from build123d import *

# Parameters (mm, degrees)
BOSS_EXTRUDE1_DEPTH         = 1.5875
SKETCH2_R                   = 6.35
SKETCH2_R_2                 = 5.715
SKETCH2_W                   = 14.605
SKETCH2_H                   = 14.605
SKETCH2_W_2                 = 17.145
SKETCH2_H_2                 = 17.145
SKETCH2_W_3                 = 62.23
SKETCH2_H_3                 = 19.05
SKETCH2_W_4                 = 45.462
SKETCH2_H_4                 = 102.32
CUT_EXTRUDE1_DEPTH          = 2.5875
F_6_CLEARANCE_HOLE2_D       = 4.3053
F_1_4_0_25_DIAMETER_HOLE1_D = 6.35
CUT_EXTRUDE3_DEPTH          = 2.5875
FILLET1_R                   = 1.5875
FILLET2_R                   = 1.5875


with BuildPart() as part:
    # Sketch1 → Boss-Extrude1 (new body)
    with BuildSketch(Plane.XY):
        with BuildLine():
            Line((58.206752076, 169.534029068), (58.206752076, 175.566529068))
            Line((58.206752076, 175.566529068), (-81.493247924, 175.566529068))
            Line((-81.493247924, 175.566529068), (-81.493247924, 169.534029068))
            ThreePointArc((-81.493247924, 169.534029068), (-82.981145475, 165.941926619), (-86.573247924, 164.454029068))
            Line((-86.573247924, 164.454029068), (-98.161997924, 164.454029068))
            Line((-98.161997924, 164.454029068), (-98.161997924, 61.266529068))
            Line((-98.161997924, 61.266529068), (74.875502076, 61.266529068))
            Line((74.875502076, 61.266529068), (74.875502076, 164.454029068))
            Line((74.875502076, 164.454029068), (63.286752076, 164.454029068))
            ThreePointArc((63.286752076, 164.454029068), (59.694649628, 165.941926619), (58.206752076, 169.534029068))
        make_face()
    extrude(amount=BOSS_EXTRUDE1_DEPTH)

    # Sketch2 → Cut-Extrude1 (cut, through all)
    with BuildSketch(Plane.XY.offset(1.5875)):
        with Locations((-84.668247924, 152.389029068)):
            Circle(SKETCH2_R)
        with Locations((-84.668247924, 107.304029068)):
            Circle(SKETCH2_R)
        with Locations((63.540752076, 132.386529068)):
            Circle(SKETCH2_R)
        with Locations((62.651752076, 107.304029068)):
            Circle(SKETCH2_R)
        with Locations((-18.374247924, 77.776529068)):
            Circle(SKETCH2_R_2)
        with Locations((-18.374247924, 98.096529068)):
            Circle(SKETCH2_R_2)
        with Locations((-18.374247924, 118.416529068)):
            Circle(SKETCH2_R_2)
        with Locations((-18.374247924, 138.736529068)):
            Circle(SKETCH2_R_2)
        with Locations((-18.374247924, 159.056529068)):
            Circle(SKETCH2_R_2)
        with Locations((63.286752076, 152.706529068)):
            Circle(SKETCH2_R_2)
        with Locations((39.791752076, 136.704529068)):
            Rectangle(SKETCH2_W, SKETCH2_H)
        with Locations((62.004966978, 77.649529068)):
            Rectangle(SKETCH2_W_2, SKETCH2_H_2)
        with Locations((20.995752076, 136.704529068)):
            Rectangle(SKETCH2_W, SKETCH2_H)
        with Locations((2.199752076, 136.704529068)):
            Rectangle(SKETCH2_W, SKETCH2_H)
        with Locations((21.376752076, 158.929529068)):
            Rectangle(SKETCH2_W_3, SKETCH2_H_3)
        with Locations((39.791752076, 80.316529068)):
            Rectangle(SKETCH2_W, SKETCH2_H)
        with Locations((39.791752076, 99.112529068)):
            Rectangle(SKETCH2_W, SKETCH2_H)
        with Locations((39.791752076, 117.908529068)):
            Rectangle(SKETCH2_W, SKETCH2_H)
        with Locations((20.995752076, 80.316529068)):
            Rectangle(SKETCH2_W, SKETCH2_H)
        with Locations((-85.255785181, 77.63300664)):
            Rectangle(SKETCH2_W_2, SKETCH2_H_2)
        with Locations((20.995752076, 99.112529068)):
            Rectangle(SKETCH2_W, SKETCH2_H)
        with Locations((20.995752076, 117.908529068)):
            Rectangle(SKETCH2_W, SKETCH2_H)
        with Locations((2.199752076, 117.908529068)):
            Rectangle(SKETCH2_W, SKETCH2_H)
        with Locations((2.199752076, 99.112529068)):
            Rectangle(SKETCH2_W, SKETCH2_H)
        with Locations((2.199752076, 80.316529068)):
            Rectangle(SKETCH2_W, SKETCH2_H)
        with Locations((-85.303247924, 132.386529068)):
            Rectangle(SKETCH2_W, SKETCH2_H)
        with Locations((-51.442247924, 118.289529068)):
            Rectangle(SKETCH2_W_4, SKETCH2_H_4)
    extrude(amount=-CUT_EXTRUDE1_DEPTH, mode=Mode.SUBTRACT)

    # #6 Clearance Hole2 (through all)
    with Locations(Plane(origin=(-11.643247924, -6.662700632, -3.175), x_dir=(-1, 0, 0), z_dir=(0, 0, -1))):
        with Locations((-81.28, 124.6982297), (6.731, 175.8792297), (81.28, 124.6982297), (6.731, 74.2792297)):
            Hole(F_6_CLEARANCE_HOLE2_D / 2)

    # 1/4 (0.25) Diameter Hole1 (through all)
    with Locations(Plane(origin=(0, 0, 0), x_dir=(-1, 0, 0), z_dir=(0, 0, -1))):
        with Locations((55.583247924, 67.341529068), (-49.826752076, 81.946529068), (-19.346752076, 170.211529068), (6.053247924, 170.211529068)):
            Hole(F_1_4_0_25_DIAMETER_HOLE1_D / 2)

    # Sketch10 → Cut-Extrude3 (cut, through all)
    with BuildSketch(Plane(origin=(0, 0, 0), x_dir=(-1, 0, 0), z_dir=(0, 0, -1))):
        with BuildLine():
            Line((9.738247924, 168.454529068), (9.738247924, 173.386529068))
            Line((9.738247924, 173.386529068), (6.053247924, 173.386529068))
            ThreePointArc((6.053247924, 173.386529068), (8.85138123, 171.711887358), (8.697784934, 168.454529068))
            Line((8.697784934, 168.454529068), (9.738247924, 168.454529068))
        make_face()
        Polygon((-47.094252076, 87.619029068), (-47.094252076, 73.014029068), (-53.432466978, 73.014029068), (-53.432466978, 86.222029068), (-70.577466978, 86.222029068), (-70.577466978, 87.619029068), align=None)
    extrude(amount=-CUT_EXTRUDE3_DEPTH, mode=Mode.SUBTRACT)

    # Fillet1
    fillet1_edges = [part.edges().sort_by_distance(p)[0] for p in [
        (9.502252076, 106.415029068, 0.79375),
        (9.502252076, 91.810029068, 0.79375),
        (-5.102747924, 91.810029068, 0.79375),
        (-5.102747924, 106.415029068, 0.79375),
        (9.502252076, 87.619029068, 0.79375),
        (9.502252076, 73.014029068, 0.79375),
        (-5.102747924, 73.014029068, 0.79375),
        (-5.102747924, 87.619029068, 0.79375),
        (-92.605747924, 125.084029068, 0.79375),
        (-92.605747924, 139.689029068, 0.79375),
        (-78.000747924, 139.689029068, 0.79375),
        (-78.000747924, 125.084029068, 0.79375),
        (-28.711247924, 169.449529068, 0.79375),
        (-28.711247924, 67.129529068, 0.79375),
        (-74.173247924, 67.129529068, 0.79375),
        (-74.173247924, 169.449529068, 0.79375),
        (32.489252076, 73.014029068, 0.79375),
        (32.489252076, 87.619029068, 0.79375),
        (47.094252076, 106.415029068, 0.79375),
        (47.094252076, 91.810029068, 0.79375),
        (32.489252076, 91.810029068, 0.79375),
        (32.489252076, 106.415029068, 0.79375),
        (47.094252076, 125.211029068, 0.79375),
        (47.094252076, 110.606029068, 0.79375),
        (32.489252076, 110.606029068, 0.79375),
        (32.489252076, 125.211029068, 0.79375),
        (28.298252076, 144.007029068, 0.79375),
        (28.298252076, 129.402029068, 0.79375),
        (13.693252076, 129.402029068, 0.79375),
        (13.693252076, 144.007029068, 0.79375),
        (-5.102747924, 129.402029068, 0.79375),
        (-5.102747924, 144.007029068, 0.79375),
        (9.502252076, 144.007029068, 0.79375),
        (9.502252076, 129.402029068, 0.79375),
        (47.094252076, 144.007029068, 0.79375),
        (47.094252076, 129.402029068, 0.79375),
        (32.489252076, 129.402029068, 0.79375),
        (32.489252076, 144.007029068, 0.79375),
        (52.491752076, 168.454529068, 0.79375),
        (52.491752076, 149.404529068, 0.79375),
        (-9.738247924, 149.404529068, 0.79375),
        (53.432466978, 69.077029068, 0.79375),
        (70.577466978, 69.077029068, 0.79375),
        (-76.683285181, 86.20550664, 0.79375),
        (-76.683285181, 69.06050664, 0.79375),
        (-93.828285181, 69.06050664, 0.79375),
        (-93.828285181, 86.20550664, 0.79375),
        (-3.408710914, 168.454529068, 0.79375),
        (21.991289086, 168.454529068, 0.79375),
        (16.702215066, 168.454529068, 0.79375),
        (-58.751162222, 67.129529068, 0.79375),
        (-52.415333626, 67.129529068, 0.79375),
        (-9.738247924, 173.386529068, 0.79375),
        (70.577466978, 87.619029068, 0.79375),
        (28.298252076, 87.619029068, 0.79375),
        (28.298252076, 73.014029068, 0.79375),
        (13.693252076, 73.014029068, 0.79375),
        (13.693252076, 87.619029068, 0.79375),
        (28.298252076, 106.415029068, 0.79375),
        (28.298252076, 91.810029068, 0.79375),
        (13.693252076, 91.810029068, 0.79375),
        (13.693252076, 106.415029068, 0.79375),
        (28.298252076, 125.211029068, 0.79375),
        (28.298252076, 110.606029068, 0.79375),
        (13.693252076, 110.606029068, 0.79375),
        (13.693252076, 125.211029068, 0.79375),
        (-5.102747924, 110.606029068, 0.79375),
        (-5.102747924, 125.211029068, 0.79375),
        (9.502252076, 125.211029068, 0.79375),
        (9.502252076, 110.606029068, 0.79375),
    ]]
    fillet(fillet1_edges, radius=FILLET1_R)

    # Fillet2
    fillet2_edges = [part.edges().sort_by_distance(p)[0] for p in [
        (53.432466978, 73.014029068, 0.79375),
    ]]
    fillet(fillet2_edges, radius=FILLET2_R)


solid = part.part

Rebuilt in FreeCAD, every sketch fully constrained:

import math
import FreeCAD as App
import Part
import Sketcher

V = App.Vector
Q = App.Units.Quantity


def edges_at(feature, points):
    """Names of the edges that pass closest to the given points."""
    edges = feature.Shape.Edges
    near = lambda p: min(range(len(edges)), key=lambda i: edges[i].distToShape(Part.Vertex(*p))[0])
    return sorted({f"Edge{near(p) + 1}" for p in points})


def add_polygon(sketch, points):
    """Adds a closed chain of lines whose ends are joined by coincident constraints."""
    first, n = sketch.GeometryCount, len(points)
    for a, b in zip(points, points[1:] + points[:1]):
        sketch.addGeometry(Part.LineSegment(App.Vector(*a, 0), App.Vector(*b, 0)), False)
    for i in range(n):
        sketch.addConstraint(Sketcher.Constraint("Coincident", first + i, 2, first + (i + 1) % n, 1))

doc = App.newDocument("Part")
body = doc.addObject("PartDesign::Body", "Body")

# Sketch on XY plane
sketch1 = body.newObject("Sketcher::SketchObject", "Sketch")
sketch1.AttachmentSupport = (doc.getObject("XY_Plane"), [""])
sketch1.MapMode = "FlatFace"
sketch1.addGeometry([
    Part.LineSegment(V(58, 170, 0), V(58, 176, 0)),  # 0
    Part.LineSegment(V(58, 176, 0), V(-81, 176, 0)),  # 1
    Part.LineSegment(V(-81, 176, 0), V(-81, 170, 0)),  # 2
    Part.ArcOfCircle(Part.Circle(V(-87, 170, 0), V(0, 0, 1), 5), math.radians(-90), math.radians(0)),  # 3
    Part.LineSegment(V(-87, 164, 0), V(-98, 164, 0)),  # 4
    Part.LineSegment(V(-98, 164, 0), V(-98, 61, 0)),  # 5
    Part.LineSegment(V(-98, 61, 0), V(75, 61, 0)),  # 6
    Part.LineSegment(V(75, 61, 0), V(75, 164, 0)),  # 7
    Part.LineSegment(V(75, 164, 0), V(63, 164, 0)),  # 8
    Part.ArcOfCircle(Part.Circle(V(63, 170, 0), V(0, 0, 1), 5), math.radians(180), math.radians(270)),  # 9
], False)
sketch1.addConstraint([
    Sketcher.Constraint("Coincident", 0, 2, 1, 1),
    Sketcher.Constraint("Coincident", 1, 2, 2, 1),
    Sketcher.Constraint("Tangent", 2, 2, 3, 2),
    Sketcher.Constraint("Tangent", 3, 1, 4, 1),
    Sketcher.Constraint("Coincident", 4, 2, 5, 1),
    Sketcher.Constraint("Coincident", 5, 2, 6, 1),
    Sketcher.Constraint("Coincident", 6, 2, 7, 1),
    Sketcher.Constraint("Coincident", 7, 2, 8, 1),
    Sketcher.Constraint("Tangent", 8, 2, 9, 2),
    Sketcher.Constraint("Tangent", 9, 1, 0, 1),
    Sketcher.Constraint("Vertical", 0),
    Sketcher.Constraint("Horizontal", 1),
    Sketcher.Constraint("Vertical", 2),
    Sketcher.Constraint("Horizontal", 4),
    Sketcher.Constraint("Vertical", 5),
    Sketcher.Constraint("Horizontal", 6),
    Sketcher.Constraint("Vertical", 7),
    Sketcher.Constraint("Horizontal", 8),
    Sketcher.Constraint("Equal", 3, 9),
    Sketcher.Constraint("Horizontal", 3, 3, 9, 3),
    Sketcher.Constraint("Equal", 4, 8),
    Sketcher.Constraint("Radius", 3, Q("0.2 in")),
    Sketcher.Constraint("DistanceX", 1, 2, 1, 1, Q("5.5 in")),
    Sketcher.Constraint("DistanceY", 5, 2, 1, 2, Q("4.5 in")),
    Sketcher.Constraint("DistanceX", 6, 1, 6, 2, Q("6.8125 in")),
    Sketcher.Constraint("DistanceY", 5, 2, 5, 1, Q("4.0625 in")),
    Sketcher.Constraint("DistanceY", -1, 1, 3, 3, Q("169.534029 mm")),
    Sketcher.Constraint("DistanceX", 3, 3, -1, 1, Q("86.573248 mm")),
])
pad1 = body.newObject("PartDesign::Pad", "Pad")
pad1.Profile = sketch1
pad1.Length = Q("0.0625 in")

# Sketch on XY plane
sketch2 = body.newObject("Sketcher::SketchObject", "Sketch001")
sketch2.AttachmentSupport = (doc.getObject("XY_Plane"), [""])
sketch2.MapMode = "FlatFace"
sketch2.AttachmentOffset = App.Placement(V(0, 0, 0.0625 * 25.4), App.Rotation())
sketch2.addGeometry(Part.Circle(V(-85, 152, 0), V(0, 0, 1), 6), False)  # 0
sketch2.addGeometry(Part.Circle(V(-85, 107, 0), V(0, 0, 1), 6), False)  # 1
sketch2.addGeometry(Part.Circle(V(64, 132, 0), V(0, 0, 1), 6), False)  # 2
sketch2.addGeometry(Part.Circle(V(63, 107, 0), V(0, 0, 1), 6), False)  # 3
sketch2.addGeometry(Part.Circle(V(-18, 78, 0), V(0, 0, 1), 6), False)  # 4
sketch2.addGeometry(Part.Circle(V(-18, 98, 0), V(0, 0, 1), 6), False)  # 5
sketch2.addGeometry(Part.Circle(V(-18, 118, 0), V(0, 0, 1), 6), False)  # 6
sketch2.addGeometry(Part.Circle(V(-18, 139, 0), V(0, 0, 1), 6), False)  # 7
sketch2.addGeometry(Part.Circle(V(-18, 159, 0), V(0, 0, 1), 6), False)  # 8
sketch2.addGeometry(Part.Circle(V(63, 153, 0), V(0, 0, 1), 6), False)  # 9
add_polygon(sketch2, [(32, 144), (32, 129), (47, 129), (47, 144)])  # lines 10-13
add_polygon(sketch2, [(53, 86), (53, 69), (71, 69), (71, 86)])  # lines 14-17
add_polygon(sketch2, [(14, 144), (14, 129), (28, 129), (28, 144)])  # lines 18-21
add_polygon(sketch2, [(-5, 144), (-5, 129), (10, 129), (10, 144)])  # lines 22-25
add_polygon(sketch2, [(-10, 168), (-10, 149), (52, 149), (52, 168)])  # lines 26-29
add_polygon(sketch2, [(32, 88), (32, 73), (47, 73), (47, 88)])  # lines 30-33
add_polygon(sketch2, [(32, 106), (32, 92), (47, 92), (47, 106)])  # lines 34-37
add_polygon(sketch2, [(32, 125), (32, 111), (47, 111), (47, 125)])  # lines 38-41
add_polygon(sketch2, [(14, 88), (14, 73), (28, 73), (28, 88)])  # lines 42-45
add_polygon(sketch2, [(-94, 86), (-94, 69), (-77, 69), (-77, 86)])  # lines 46-49
add_polygon(sketch2, [(14, 106), (14, 92), (28, 92), (28, 106)])  # lines 50-53
add_polygon(sketch2, [(14, 125), (14, 111), (28, 111), (28, 125)])  # lines 54-57
add_polygon(sketch2, [(-5, 125), (-5, 111), (10, 111), (10, 125)])  # lines 58-61
add_polygon(sketch2, [(-5, 106), (-5, 92), (10, 92), (10, 106)])  # lines 62-65
add_polygon(sketch2, [(-5, 88), (-5, 73), (10, 73), (10, 88)])  # lines 66-69
add_polygon(sketch2, [(-93, 140), (-93, 125), (-78, 125), (-78, 140)])  # lines 70-73
add_polygon(sketch2, [(-74, 169), (-74, 67), (-29, 67), (-29, 169)])  # lines 74-77
sketch2.addConstraint([
    Sketcher.Constraint("Vertical", 10),
    Sketcher.Constraint("Horizontal", 11),
    Sketcher.Constraint("Vertical", 12),
    Sketcher.Constraint("Horizontal", 13),
    Sketcher.Constraint("Vertical", 14),
    Sketcher.Constraint("Horizontal", 15),
    Sketcher.Constraint("Vertical", 16),
    Sketcher.Constraint("Horizontal", 17),
    Sketcher.Constraint("Vertical", 18),
    Sketcher.Constraint("Horizontal", 19),
    Sketcher.Constraint("Vertical", 20),
    Sketcher.Constraint("Horizontal", 21),
    Sketcher.Constraint("Vertical", 22),
    Sketcher.Constraint("Horizontal", 23),
    Sketcher.Constraint("Vertical", 24),
    Sketcher.Constraint("Horizontal", 25),
    Sketcher.Constraint("Vertical", 26),
    Sketcher.Constraint("Horizontal", 27),
    Sketcher.Constraint("Vertical", 28),
    Sketcher.Constraint("Horizontal", 29),
    Sketcher.Constraint("Vertical", 30),
    Sketcher.Constraint("Horizontal", 31),
    Sketcher.Constraint("Vertical", 32),
    Sketcher.Constraint("Horizontal", 33),
    Sketcher.Constraint("Vertical", 34),
    Sketcher.Constraint("Horizontal", 35),
    Sketcher.Constraint("Vertical", 36),
    Sketcher.Constraint("Horizontal", 37),
    Sketcher.Constraint("Vertical", 38),
    Sketcher.Constraint("Horizontal", 39),
    Sketcher.Constraint("Vertical", 40),
    Sketcher.Constraint("Horizontal", 41),
    Sketcher.Constraint("Vertical", 42),
    Sketcher.Constraint("Horizontal", 43),
    Sketcher.Constraint("Vertical", 44),
    Sketcher.Constraint("Horizontal", 45),
    Sketcher.Constraint("Vertical", 46),
    Sketcher.Constraint("Horizontal", 47),
    Sketcher.Constraint("Vertical", 48),
    Sketcher.Constraint("Horizontal", 49),
    Sketcher.Constraint("Vertical", 50),
    Sketcher.Constraint("Horizontal", 51),
    Sketcher.Constraint("Vertical", 52),
    Sketcher.Constraint("Horizontal", 53),
    Sketcher.Constraint("Vertical", 54),
    Sketcher.Constraint("Horizontal", 55),
    Sketcher.Constraint("Vertical", 56),
    Sketcher.Constraint("Horizontal", 57),
    Sketcher.Constraint("Vertical", 58),
    Sketcher.Constraint("Horizontal", 59),
    Sketcher.Constraint("Vertical", 60),
    Sketcher.Constraint("Horizontal", 61),
    Sketcher.Constraint("Vertical", 62),
    Sketcher.Constraint("Horizontal", 63),
    Sketcher.Constraint("Vertical", 64),
    Sketcher.Constraint("Horizontal", 65),
    Sketcher.Constraint("Vertical", 66),
    Sketcher.Constraint("Horizontal", 67),
    Sketcher.Constraint("Vertical", 68),
    Sketcher.Constraint("Horizontal", 69),
    Sketcher.Constraint("Vertical", 70),
    Sketcher.Constraint("Horizontal", 71),
    Sketcher.Constraint("Vertical", 72),
    Sketcher.Constraint("Horizontal", 73),
    Sketcher.Constraint("Vertical", 74),
    Sketcher.Constraint("Horizontal", 75),
    Sketcher.Constraint("Vertical", 76),
    Sketcher.Constraint("Horizontal", 77),
    Sketcher.Constraint("Equal", 0, 1),
    Sketcher.Constraint("Equal", 1, 2),
    Sketcher.Constraint("Equal", 2, 3),
    Sketcher.Constraint("Equal", 4, 5),
    Sketcher.Constraint("Equal", 5, 6),
    Sketcher.Constraint("Equal", 6, 7),
    Sketcher.Constraint("Equal", 7, 8),
    Sketcher.Constraint("Equal", 8, 9),
    Sketcher.Constraint("Horizontal", 1, 3, 3, 3),
    Sketcher.Constraint("Horizontal", 11, 2, 18, 2),
    Sketcher.Constraint("Horizontal", 13, 2, 20, 2),
    Sketcher.Constraint("Horizontal", 19, 2, 22, 2),
    Sketcher.Constraint("Horizontal", 21, 2, 24, 2),
    Sketcher.Constraint("Horizontal", 31, 2, 42, 2),
    Sketcher.Constraint("Horizontal", 33, 2, 44, 2),
    Sketcher.Constraint("Horizontal", 35, 2, 50, 2),
    Sketcher.Constraint("Horizontal", 37, 2, 52, 2),
    Sketcher.Constraint("Horizontal", 39, 2, 54, 2),
    Sketcher.Constraint("Horizontal", 41, 2, 56, 2),
    Sketcher.Constraint("Horizontal", 55, 2, 58, 2),
    Sketcher.Constraint("Horizontal", 57, 2, 60, 2),
    Sketcher.Constraint("Horizontal", 51, 2, 62, 2),
    Sketcher.Constraint("Horizontal", 53, 2, 64, 2),
    Sketcher.Constraint("Horizontal", 43, 2, 66, 2),
    Sketcher.Constraint("Horizontal", 45, 2, 68, 2),
    Sketcher.Constraint("Vertical", 0, 3, 1, 3),
    Sketcher.Constraint("Vertical", 4, 3, 5, 3),
    Sketcher.Constraint("Vertical", 5, 3, 6, 3),
    Sketcher.Constraint("Vertical", 6, 3, 7, 3),
    Sketcher.Constraint("Vertical", 7, 3, 8, 3),
    Sketcher.Constraint("Vertical", 13, 2, 30, 2),
    Sketcher.Constraint("Vertical", 12, 2, 31, 2),
    Sketcher.Constraint("Vertical", 33, 2, 34, 2),
    Sketcher.Constraint("Vertical", 32, 2, 35, 2),
    Sketcher.Constraint("Vertical", 37, 2, 38, 2),
    Sketcher.Constraint("Vertical", 36, 2, 39, 2),
    Sketcher.Constraint("Vertical", 21, 2, 42, 2),
    Sketcher.Constraint("Vertical", 20, 2, 43, 2),
    Sketcher.Constraint("Vertical", 45, 2, 50, 2),
    Sketcher.Constraint("Vertical", 44, 2, 51, 2),
    Sketcher.Constraint("Vertical", 53, 2, 54, 2),
    Sketcher.Constraint("Vertical", 52, 2, 55, 2),
    Sketcher.Constraint("Vertical", 25, 2, 58, 2),
    Sketcher.Constraint("Vertical", 24, 2, 59, 2),
    Sketcher.Constraint("Vertical", 61, 2, 62, 2),
    Sketcher.Constraint("Vertical", 60, 2, 63, 2),
    Sketcher.Constraint("Vertical", 65, 2, 66, 2),
    Sketcher.Constraint("Vertical", 64, 2, 67, 2),
    Sketcher.Constraint("Equal", 13, 19),
    Sketcher.Constraint("Equal", 21, 23),
    Sketcher.Constraint("Equal", 17, 47),
    Sketcher.Constraint("Equal", 69, 71),
    Sketcher.Constraint("Equal", 73, 10),
    Sketcher.Constraint("Equal", 49, 14),
    Sketcher.Constraint("Equal", 24, 30),
    Sketcher.Constraint("Equal", 32, 34),
    Sketcher.Constraint("Equal", 36, 38),
    Sketcher.Constraint("Equal", 16, 46),
    Sketcher.Constraint("Equal", 68, 70),
    Sketcher.Constraint("Diameter", 0, Q("0.5 in")),
    Sketcher.Constraint("Diameter", 4, Q("0.45 in")),
    Sketcher.Constraint("DistanceX", 27, 1, 27, 2, Q("2.45 in")),
    Sketcher.Constraint("DistanceY", 26, 2, 26, 1, Q("0.75 in")),
    Sketcher.Constraint("DistanceX", 11, 1, 11, 2, Q("0.575 in")),
    Sketcher.Constraint("DistanceX", 15, 1, 15, 2, Q("0.675 in")),
    Sketcher.Constraint("DistanceX", 75, 1, 75, 2, Q("45.462 mm")),
    Sketcher.Constraint("DistanceY", 74, 2, 74, 1, Q("102.32 mm")),
    Sketcher.Constraint("DistanceY", -1, 1, 0, 3, Q("152.389029 mm")),
    Sketcher.Constraint("DistanceY", -1, 1, 1, 3, Q("107.304029 mm")),
    Sketcher.Constraint("DistanceY", -1, 1, 2, 3, Q("132.386529 mm")),
    Sketcher.Constraint("DistanceY", -1, 1, 4, 3, Q("77.776529 mm")),
    Sketcher.Constraint("DistanceY", -1, 1, 5, 3, Q("98.096529 mm")),
    Sketcher.Constraint("DistanceY", -1, 1, 6, 3, Q("118.416529 mm")),
    Sketcher.Constraint("DistanceY", -1, 1, 7, 3, Q("138.736529 mm")),
    Sketcher.Constraint("DistanceY", -1, 1, 8, 3, Q("159.056529 mm")),
    Sketcher.Constraint("DistanceY", -1, 1, 9, 3, Q("152.706529 mm")),
    Sketcher.Constraint("DistanceY", -1, 1, 10, 2, Q("129.402029 mm")),
    Sketcher.Constraint("DistanceY", -1, 1, 14, 2, Q("69.077029 mm")),
    Sketcher.Constraint("DistanceY", -1, 1, 26, 2, Q("149.404529 mm")),
    Sketcher.Constraint("DistanceY", -1, 1, 30, 2, Q("73.014029 mm")),
    Sketcher.Constraint("DistanceY", -1, 1, 34, 2, Q("91.810029 mm")),
    Sketcher.Constraint("DistanceY", -1, 1, 38, 2, Q("110.606029 mm")),
    Sketcher.Constraint("DistanceY", -1, 1, 70, 2, Q("125.084029 mm")),
    Sketcher.Constraint("DistanceY", -1, 1, 74, 2, Q("67.129529 mm")),
    Sketcher.Constraint("DistanceX", 0, 3, -1, 1, Q("84.668248 mm")),
    Sketcher.Constraint("DistanceX", -1, 1, 2, 3, Q("63.540752 mm")),
    Sketcher.Constraint("DistanceX", -1, 1, 3, 3, Q("62.651752 mm")),
    Sketcher.Constraint("DistanceX", 4, 3, -1, 1, Q("18.374248 mm")),
    Sketcher.Constraint("DistanceX", -1, 1, 9, 3, Q("63.286752 mm")),
    Sketcher.Constraint("DistanceX", -1, 1, 10, 2, Q("32.489252 mm")),
    Sketcher.Constraint("DistanceX", -1, 1, 14, 2, Q("53.432467 mm")),
    Sketcher.Constraint("DistanceX", -1, 1, 18, 2, Q("13.693252 mm")),
    Sketcher.Constraint("DistanceX", 22, 2, -1, 1, Q("5.102748 mm")),
    Sketcher.Constraint("DistanceX", 26, 2, -1, 1, Q("9.738248 mm")),
    Sketcher.Constraint("DistanceX", 46, 2, -1, 1, Q("93.828285 mm")),
    Sketcher.Constraint("DistanceY", -1, 1, 46, 2, Q("69.060507 mm")),
    Sketcher.Constraint("DistanceX", 70, 2, -1, 1, Q("92.605748 mm")),
    Sketcher.Constraint("DistanceX", 74, 2, -1, 1, Q("74.173248 mm")),
])
pocket1 = body.newObject("PartDesign::Pocket", "Pocket")
pocket1.Profile = sketch2
pocket1.Type = "ThroughAll"

# Sketch on XY plane
sketch3 = body.newObject("Sketcher::SketchObject", "Sketch002")
sketch3.AttachmentSupport = (doc.getObject("XY_Plane"), [""])
sketch3.MapMode = "FlatFace"
sketch3.AttachmentOffset = App.Placement(V(0, 0, -0.125 * 25.4), App.Rotation())
sketch3.addGeometry([
    Part.Circle(V(69.6, 118, 0), V(0, 0, 1), 2.2),
    Part.Circle(V(-18.4, 169.2, 0), V(0, 0, 1), 2.2),
    Part.Circle(V(-92.9, 118, 0), V(0, 0, 1), 2.2),
    Part.Circle(V(-18.4, 67.6, 0), V(0, 0, 1), 2.2),
], False)
sketch3.addConstraint([
    Sketcher.Constraint("Equal", 0, 1),
    Sketcher.Constraint("Equal", 1, 2),
    Sketcher.Constraint("Equal", 2, 3),
    Sketcher.Constraint("Horizontal", 0, 3, 2, 3),
    Sketcher.Constraint("Vertical", 1, 3, 3, 3),
    Sketcher.Constraint("DistanceY", 3, 3, 1, 3, Q("4 in")),
    Sketcher.Constraint("Diameter", 0, Q("0.1695 in")),
    Sketcher.Constraint("DistanceX", 2, 3, 0, 3, Q("6.4 in")),
    Sketcher.Constraint("DistanceX", 1, 3, 0, 3, Q("3.465 in")),
    Sketcher.Constraint("DistanceY", 0, 3, 1, 3, Q("2.015 in")),
    Sketcher.Constraint("DistanceY", -1, 1, 0, 3, Q("118.035529 mm")),
    Sketcher.Constraint("DistanceX", -1, 1, 0, 3, Q("69.636752 mm")),
])
doc.recompute()
hole = body.newObject("PartDesign::Hole", "Hole")
hole.Profile = sketch3
hole.ThreadType = "None"
hole.Diameter = Q("0.1695 in")
hole.DepthType = "ThroughAll"
hole.Reversed = True

# Sketch on XY plane
sketch4 = body.newObject("Sketcher::SketchObject", "Sketch003")
sketch4.AttachmentSupport = (doc.getObject("XY_Plane"), [""])
sketch4.MapMode = "FlatFace"
sketch4.addGeometry([
    Part.Circle(V(-55.6, 67.3, 0), V(0, 0, 1), 3.2),
    Part.Circle(V(49.8, 81.9, 0), V(0, 0, 1), 3.2),
    Part.Circle(V(19.3, 170.2, 0), V(0, 0, 1), 3.2),
    Part.Circle(V(-6.1, 170.2, 0), V(0, 0, 1), 3.2),
], False)
sketch4.addConstraint([
    Sketcher.Constraint("Equal", 0, 1),
    Sketcher.Constraint("Equal", 1, 2),
    Sketcher.Constraint("Equal", 2, 3),
    Sketcher.Constraint("Horizontal", 2, 3, 3, 3),
    Sketcher.Constraint("Diameter", 0, Q("0.25 in")),
    Sketcher.Constraint("DistanceX", 3, 3, 2, 3, Q("1 in")),
    Sketcher.Constraint("DistanceX", 2, 3, 1, 3, Q("1.2 in")),
    Sketcher.Constraint("DistanceX", 0, 3, 1, 3, Q("4.15 in")),
    Sketcher.Constraint("DistanceY", 0, 3, 2, 3, Q("4.05 in")),
    Sketcher.Constraint("DistanceY", 0, 3, 1, 3, Q("0.575 in")),
    Sketcher.Constraint("DistanceY", -1, 1, 0, 3, Q("67.341529 mm")),
    Sketcher.Constraint("DistanceX", 0, 3, -1, 1, Q("55.583248 mm")),
])
doc.recompute()
hole2 = body.newObject("PartDesign::Hole", "Hole001")
hole2.Profile = sketch4
hole2.ThreadType = "None"
hole2.Diameter = Q("0.25 in")
hole2.DepthType = "ThroughAll"
hole2.Reversed = True

# Sketch on XY plane
sketch5 = body.newObject("Sketcher::SketchObject", "Sketch004")
sketch5.AttachmentSupport = (doc.getObject("XY_Plane"), [""])
sketch5.MapMode = "FlatFace"
sketch5.addGeometry(Part.LineSegment(V(-9.7, 168.5, 0), V(-9.7, 173.4, 0)), False)  # 0
sketch5.addGeometry(Part.LineSegment(V(-9.7, 173.4, 0), V(-6.1, 173.4, 0)), False)  # 1
sketch5.addGeometry(Part.ArcOfCircle(Part.Circle(V(-6.1, 170.2, 0), V(0, 0, 1), 3.2), math.radians(90), math.radians(214)), False)  # 2
sketch5.addGeometry(Part.LineSegment(V(-8.7, 168.5, 0), V(-9.7, 168.5, 0)), False)  # 3
add_polygon(sketch5, [(47.1, 73), (47.1, 87.6), (70.6, 87.6), (70.6, 86.2), (53.4, 86.2), (53.4, 73)])  # lines 4-9
sketch5.addConstraint([
    Sketcher.Constraint("Coincident", 0, 2, 1, 1),
    Sketcher.Constraint("Tangent", 1, 2, 2, 1),
    Sketcher.Constraint("Coincident", 2, 2, 3, 1),
    Sketcher.Constraint("Coincident", 3, 2, 0, 1),
    Sketcher.Constraint("Vertical", 0),
    Sketcher.Constraint("Horizontal", 1),
    Sketcher.Constraint("Horizontal", 3),
    Sketcher.Constraint("Vertical", 4),
    Sketcher.Constraint("Horizontal", 5),
    Sketcher.Constraint("Vertical", 6),
    Sketcher.Constraint("Horizontal", 7),
    Sketcher.Constraint("Vertical", 8),
    Sketcher.Constraint("Horizontal", 9),
    Sketcher.Constraint("Radius", 2, Q("0.125 in")),
    Sketcher.Constraint("DistanceY", 8, 2, 8, 1, Q("0.52 in")),
    Sketcher.Constraint("DistanceX", 7, 2, 7, 1, Q("0.675 in")),
    Sketcher.Constraint("DistanceY", 4, 1, 4, 2, Q("0.575 in")),
    Sketcher.Constraint("DistanceX", 1, 1, 1, 2, Q("3.685 mm")),
    Sketcher.Constraint("DistanceY", 0, 1, 0, 2, Q("4.932 mm")),
    Sketcher.Constraint("DistanceY", 4, 2, 2, 2, Q("3.1825 in")),
    Sketcher.Constraint("DistanceX", 3, 2, 4, 2, Q("2.2375 in")),
    Sketcher.Constraint("DistanceX", 5, 1, 5, 2, Q("23.483215 mm")),
    Sketcher.Constraint("DistanceY", -1, 1, 2, 3, Q("170.211529 mm")),
    Sketcher.Constraint("DistanceX", 2, 3, -1, 1, Q("6.053248 mm")),
])
pocket2 = body.newObject("PartDesign::Pocket", "Pocket001")
pocket2.Profile = sketch5
pocket2.Type = "ThroughAll"
pocket2.Reversed = True
doc.recompute()

fillet = body.newObject("PartDesign::Fillet", "Fillet")
fillet.Base = (pocket2, edges_at(pocket2, [
    (9.502, 106.415, 0.794),
    (9.502, 91.81, 0.794),
    (-5.103, 91.81, 0.794),
    (-5.103, 106.415, 0.794),
    (9.502, 87.619, 0.794),
    (9.502, 73.014, 0.794),
    (-5.103, 73.014, 0.794),
    (-5.103, 87.619, 0.794),
    (-92.606, 125.084, 0.794),
    (-92.606, 139.689, 0.794),
    (-78.001, 139.689, 0.794),
    (-78.001, 125.084, 0.794),
    (-28.711, 169.45, 0.794),
    (-28.711, 67.13, 0.794),
    (-74.173, 67.13, 0.794),
    (-74.173, 169.45, 0.794),
    (32.489, 73.014, 0.794),
    (32.489, 87.619, 0.794),
    (47.094, 106.415, 0.794),
    (47.094, 91.81, 0.794),
    (32.489, 91.81, 0.794),
    (32.489, 106.415, 0.794),
    (47.094, 125.211, 0.794),
    (47.094, 110.606, 0.794),
    (32.489, 110.606, 0.794),
    (32.489, 125.211, 0.794),
    (28.298, 144.007, 0.794),
    (28.298, 129.402, 0.794),
    (13.693, 129.402, 0.794),
    (13.693, 144.007, 0.794),
    (-5.103, 129.402, 0.794),
    (-5.103, 144.007, 0.794),
    (9.502, 144.007, 0.794),
    (9.502, 129.402, 0.794),
    (47.094, 144.007, 0.794),
    (47.094, 129.402, 0.794),
    (32.489, 129.402, 0.794),
    (32.489, 144.007, 0.794),
    (52.492, 168.455, 0.794),
    (52.492, 149.405, 0.794),
    (-9.738, 149.405, 0.794),
    (53.432, 69.077, 0.794),
    (70.577, 69.077, 0.794),
    (-76.683, 86.206, 0.794),
    (-76.683, 69.061, 0.794),
    (-93.828, 69.061, 0.794),
    (-93.828, 86.206, 0.794),
    (-3.409, 168.455, 0.794),
    (21.991, 168.455, 0.794),
    (16.702, 168.455, 0.794),
    (-58.751, 67.13, 0.794),
    (-52.415, 67.13, 0.794),
    (-9.738, 173.387, 0.794),
    (70.577, 87.619, 0.794),
    (28.298, 87.619, 0.794),
    (28.298, 73.014, 0.794),
    (13.693, 73.014, 0.794),
    (13.693, 87.619, 0.794),
    (28.298, 106.415, 0.794),
    (28.298, 91.81, 0.794),
    (13.693, 91.81, 0.794),
    (13.693, 106.415, 0.794),
    (28.298, 125.211, 0.794),
    (28.298, 110.606, 0.794),
    (13.693, 110.606, 0.794),
    (13.693, 125.211, 0.794),
    (-5.103, 110.606, 0.794),
    (-5.103, 125.211, 0.794),
    (9.502, 125.211, 0.794),
    (9.502, 110.606, 0.794),
]))
fillet.Radius = Q("0.0625 in")
doc.recompute()

fillet2 = body.newObject("PartDesign::Fillet", "Fillet001")
fillet2.Base = (fillet, edges_at(fillet, [(53.432, 73.014, 0.794)]))
fillet2.Radius = Q("0.0625 in")

doc.recompute()
